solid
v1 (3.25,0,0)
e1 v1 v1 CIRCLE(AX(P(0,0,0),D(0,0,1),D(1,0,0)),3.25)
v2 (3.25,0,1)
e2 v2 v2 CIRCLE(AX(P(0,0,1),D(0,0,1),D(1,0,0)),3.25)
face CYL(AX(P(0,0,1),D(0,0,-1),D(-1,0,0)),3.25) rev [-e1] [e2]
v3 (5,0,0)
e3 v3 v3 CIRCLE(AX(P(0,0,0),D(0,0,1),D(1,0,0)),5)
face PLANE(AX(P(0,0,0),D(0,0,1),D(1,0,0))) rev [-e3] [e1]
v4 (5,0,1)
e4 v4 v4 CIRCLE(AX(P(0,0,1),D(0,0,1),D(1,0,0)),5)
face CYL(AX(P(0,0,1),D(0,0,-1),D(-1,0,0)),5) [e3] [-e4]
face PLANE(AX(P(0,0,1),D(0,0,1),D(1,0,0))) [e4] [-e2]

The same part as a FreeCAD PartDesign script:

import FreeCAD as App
import Part
import Sketcher

V = App.Vector

doc = App.newDocument("Part")
body = doc.addObject("PartDesign::Body", "Body")

# Sketch on XY plane
sketch1 = doc.addObject("Sketcher::SketchObject", "Sketch")
body.addObject(sketch1)
sketch1.AttachmentSupport = (doc.XY_Plane, [""])
sketch1.MapMode = "FlatFace"
sketch1.addGeometry(Part.Circle(V(0, 0, 0), V(0, 0, 1), 5), False)
sketch1.addGeometry(Part.Circle(V(0, 0, 0), V(0, 0, 1), 3.2), False)
sketch1.addConstraint(Sketcher.Constraint("Coincident", 0, 3, -1, 1))
sketch1.addConstraint(Sketcher.Constraint("Coincident", 1, 3, -1, 1))
sketch1.addConstraint(Sketcher.Constraint("Diameter", 0, 10.0))
sketch1.addConstraint(Sketcher.Constraint("Diameter", 1, 6.5))
pad1 = doc.addObject("PartDesign::Pad", "Pad")
body.addObject(pad1)
pad1.Profile = sketch1
pad1.Length = 1

doc.recompute()
